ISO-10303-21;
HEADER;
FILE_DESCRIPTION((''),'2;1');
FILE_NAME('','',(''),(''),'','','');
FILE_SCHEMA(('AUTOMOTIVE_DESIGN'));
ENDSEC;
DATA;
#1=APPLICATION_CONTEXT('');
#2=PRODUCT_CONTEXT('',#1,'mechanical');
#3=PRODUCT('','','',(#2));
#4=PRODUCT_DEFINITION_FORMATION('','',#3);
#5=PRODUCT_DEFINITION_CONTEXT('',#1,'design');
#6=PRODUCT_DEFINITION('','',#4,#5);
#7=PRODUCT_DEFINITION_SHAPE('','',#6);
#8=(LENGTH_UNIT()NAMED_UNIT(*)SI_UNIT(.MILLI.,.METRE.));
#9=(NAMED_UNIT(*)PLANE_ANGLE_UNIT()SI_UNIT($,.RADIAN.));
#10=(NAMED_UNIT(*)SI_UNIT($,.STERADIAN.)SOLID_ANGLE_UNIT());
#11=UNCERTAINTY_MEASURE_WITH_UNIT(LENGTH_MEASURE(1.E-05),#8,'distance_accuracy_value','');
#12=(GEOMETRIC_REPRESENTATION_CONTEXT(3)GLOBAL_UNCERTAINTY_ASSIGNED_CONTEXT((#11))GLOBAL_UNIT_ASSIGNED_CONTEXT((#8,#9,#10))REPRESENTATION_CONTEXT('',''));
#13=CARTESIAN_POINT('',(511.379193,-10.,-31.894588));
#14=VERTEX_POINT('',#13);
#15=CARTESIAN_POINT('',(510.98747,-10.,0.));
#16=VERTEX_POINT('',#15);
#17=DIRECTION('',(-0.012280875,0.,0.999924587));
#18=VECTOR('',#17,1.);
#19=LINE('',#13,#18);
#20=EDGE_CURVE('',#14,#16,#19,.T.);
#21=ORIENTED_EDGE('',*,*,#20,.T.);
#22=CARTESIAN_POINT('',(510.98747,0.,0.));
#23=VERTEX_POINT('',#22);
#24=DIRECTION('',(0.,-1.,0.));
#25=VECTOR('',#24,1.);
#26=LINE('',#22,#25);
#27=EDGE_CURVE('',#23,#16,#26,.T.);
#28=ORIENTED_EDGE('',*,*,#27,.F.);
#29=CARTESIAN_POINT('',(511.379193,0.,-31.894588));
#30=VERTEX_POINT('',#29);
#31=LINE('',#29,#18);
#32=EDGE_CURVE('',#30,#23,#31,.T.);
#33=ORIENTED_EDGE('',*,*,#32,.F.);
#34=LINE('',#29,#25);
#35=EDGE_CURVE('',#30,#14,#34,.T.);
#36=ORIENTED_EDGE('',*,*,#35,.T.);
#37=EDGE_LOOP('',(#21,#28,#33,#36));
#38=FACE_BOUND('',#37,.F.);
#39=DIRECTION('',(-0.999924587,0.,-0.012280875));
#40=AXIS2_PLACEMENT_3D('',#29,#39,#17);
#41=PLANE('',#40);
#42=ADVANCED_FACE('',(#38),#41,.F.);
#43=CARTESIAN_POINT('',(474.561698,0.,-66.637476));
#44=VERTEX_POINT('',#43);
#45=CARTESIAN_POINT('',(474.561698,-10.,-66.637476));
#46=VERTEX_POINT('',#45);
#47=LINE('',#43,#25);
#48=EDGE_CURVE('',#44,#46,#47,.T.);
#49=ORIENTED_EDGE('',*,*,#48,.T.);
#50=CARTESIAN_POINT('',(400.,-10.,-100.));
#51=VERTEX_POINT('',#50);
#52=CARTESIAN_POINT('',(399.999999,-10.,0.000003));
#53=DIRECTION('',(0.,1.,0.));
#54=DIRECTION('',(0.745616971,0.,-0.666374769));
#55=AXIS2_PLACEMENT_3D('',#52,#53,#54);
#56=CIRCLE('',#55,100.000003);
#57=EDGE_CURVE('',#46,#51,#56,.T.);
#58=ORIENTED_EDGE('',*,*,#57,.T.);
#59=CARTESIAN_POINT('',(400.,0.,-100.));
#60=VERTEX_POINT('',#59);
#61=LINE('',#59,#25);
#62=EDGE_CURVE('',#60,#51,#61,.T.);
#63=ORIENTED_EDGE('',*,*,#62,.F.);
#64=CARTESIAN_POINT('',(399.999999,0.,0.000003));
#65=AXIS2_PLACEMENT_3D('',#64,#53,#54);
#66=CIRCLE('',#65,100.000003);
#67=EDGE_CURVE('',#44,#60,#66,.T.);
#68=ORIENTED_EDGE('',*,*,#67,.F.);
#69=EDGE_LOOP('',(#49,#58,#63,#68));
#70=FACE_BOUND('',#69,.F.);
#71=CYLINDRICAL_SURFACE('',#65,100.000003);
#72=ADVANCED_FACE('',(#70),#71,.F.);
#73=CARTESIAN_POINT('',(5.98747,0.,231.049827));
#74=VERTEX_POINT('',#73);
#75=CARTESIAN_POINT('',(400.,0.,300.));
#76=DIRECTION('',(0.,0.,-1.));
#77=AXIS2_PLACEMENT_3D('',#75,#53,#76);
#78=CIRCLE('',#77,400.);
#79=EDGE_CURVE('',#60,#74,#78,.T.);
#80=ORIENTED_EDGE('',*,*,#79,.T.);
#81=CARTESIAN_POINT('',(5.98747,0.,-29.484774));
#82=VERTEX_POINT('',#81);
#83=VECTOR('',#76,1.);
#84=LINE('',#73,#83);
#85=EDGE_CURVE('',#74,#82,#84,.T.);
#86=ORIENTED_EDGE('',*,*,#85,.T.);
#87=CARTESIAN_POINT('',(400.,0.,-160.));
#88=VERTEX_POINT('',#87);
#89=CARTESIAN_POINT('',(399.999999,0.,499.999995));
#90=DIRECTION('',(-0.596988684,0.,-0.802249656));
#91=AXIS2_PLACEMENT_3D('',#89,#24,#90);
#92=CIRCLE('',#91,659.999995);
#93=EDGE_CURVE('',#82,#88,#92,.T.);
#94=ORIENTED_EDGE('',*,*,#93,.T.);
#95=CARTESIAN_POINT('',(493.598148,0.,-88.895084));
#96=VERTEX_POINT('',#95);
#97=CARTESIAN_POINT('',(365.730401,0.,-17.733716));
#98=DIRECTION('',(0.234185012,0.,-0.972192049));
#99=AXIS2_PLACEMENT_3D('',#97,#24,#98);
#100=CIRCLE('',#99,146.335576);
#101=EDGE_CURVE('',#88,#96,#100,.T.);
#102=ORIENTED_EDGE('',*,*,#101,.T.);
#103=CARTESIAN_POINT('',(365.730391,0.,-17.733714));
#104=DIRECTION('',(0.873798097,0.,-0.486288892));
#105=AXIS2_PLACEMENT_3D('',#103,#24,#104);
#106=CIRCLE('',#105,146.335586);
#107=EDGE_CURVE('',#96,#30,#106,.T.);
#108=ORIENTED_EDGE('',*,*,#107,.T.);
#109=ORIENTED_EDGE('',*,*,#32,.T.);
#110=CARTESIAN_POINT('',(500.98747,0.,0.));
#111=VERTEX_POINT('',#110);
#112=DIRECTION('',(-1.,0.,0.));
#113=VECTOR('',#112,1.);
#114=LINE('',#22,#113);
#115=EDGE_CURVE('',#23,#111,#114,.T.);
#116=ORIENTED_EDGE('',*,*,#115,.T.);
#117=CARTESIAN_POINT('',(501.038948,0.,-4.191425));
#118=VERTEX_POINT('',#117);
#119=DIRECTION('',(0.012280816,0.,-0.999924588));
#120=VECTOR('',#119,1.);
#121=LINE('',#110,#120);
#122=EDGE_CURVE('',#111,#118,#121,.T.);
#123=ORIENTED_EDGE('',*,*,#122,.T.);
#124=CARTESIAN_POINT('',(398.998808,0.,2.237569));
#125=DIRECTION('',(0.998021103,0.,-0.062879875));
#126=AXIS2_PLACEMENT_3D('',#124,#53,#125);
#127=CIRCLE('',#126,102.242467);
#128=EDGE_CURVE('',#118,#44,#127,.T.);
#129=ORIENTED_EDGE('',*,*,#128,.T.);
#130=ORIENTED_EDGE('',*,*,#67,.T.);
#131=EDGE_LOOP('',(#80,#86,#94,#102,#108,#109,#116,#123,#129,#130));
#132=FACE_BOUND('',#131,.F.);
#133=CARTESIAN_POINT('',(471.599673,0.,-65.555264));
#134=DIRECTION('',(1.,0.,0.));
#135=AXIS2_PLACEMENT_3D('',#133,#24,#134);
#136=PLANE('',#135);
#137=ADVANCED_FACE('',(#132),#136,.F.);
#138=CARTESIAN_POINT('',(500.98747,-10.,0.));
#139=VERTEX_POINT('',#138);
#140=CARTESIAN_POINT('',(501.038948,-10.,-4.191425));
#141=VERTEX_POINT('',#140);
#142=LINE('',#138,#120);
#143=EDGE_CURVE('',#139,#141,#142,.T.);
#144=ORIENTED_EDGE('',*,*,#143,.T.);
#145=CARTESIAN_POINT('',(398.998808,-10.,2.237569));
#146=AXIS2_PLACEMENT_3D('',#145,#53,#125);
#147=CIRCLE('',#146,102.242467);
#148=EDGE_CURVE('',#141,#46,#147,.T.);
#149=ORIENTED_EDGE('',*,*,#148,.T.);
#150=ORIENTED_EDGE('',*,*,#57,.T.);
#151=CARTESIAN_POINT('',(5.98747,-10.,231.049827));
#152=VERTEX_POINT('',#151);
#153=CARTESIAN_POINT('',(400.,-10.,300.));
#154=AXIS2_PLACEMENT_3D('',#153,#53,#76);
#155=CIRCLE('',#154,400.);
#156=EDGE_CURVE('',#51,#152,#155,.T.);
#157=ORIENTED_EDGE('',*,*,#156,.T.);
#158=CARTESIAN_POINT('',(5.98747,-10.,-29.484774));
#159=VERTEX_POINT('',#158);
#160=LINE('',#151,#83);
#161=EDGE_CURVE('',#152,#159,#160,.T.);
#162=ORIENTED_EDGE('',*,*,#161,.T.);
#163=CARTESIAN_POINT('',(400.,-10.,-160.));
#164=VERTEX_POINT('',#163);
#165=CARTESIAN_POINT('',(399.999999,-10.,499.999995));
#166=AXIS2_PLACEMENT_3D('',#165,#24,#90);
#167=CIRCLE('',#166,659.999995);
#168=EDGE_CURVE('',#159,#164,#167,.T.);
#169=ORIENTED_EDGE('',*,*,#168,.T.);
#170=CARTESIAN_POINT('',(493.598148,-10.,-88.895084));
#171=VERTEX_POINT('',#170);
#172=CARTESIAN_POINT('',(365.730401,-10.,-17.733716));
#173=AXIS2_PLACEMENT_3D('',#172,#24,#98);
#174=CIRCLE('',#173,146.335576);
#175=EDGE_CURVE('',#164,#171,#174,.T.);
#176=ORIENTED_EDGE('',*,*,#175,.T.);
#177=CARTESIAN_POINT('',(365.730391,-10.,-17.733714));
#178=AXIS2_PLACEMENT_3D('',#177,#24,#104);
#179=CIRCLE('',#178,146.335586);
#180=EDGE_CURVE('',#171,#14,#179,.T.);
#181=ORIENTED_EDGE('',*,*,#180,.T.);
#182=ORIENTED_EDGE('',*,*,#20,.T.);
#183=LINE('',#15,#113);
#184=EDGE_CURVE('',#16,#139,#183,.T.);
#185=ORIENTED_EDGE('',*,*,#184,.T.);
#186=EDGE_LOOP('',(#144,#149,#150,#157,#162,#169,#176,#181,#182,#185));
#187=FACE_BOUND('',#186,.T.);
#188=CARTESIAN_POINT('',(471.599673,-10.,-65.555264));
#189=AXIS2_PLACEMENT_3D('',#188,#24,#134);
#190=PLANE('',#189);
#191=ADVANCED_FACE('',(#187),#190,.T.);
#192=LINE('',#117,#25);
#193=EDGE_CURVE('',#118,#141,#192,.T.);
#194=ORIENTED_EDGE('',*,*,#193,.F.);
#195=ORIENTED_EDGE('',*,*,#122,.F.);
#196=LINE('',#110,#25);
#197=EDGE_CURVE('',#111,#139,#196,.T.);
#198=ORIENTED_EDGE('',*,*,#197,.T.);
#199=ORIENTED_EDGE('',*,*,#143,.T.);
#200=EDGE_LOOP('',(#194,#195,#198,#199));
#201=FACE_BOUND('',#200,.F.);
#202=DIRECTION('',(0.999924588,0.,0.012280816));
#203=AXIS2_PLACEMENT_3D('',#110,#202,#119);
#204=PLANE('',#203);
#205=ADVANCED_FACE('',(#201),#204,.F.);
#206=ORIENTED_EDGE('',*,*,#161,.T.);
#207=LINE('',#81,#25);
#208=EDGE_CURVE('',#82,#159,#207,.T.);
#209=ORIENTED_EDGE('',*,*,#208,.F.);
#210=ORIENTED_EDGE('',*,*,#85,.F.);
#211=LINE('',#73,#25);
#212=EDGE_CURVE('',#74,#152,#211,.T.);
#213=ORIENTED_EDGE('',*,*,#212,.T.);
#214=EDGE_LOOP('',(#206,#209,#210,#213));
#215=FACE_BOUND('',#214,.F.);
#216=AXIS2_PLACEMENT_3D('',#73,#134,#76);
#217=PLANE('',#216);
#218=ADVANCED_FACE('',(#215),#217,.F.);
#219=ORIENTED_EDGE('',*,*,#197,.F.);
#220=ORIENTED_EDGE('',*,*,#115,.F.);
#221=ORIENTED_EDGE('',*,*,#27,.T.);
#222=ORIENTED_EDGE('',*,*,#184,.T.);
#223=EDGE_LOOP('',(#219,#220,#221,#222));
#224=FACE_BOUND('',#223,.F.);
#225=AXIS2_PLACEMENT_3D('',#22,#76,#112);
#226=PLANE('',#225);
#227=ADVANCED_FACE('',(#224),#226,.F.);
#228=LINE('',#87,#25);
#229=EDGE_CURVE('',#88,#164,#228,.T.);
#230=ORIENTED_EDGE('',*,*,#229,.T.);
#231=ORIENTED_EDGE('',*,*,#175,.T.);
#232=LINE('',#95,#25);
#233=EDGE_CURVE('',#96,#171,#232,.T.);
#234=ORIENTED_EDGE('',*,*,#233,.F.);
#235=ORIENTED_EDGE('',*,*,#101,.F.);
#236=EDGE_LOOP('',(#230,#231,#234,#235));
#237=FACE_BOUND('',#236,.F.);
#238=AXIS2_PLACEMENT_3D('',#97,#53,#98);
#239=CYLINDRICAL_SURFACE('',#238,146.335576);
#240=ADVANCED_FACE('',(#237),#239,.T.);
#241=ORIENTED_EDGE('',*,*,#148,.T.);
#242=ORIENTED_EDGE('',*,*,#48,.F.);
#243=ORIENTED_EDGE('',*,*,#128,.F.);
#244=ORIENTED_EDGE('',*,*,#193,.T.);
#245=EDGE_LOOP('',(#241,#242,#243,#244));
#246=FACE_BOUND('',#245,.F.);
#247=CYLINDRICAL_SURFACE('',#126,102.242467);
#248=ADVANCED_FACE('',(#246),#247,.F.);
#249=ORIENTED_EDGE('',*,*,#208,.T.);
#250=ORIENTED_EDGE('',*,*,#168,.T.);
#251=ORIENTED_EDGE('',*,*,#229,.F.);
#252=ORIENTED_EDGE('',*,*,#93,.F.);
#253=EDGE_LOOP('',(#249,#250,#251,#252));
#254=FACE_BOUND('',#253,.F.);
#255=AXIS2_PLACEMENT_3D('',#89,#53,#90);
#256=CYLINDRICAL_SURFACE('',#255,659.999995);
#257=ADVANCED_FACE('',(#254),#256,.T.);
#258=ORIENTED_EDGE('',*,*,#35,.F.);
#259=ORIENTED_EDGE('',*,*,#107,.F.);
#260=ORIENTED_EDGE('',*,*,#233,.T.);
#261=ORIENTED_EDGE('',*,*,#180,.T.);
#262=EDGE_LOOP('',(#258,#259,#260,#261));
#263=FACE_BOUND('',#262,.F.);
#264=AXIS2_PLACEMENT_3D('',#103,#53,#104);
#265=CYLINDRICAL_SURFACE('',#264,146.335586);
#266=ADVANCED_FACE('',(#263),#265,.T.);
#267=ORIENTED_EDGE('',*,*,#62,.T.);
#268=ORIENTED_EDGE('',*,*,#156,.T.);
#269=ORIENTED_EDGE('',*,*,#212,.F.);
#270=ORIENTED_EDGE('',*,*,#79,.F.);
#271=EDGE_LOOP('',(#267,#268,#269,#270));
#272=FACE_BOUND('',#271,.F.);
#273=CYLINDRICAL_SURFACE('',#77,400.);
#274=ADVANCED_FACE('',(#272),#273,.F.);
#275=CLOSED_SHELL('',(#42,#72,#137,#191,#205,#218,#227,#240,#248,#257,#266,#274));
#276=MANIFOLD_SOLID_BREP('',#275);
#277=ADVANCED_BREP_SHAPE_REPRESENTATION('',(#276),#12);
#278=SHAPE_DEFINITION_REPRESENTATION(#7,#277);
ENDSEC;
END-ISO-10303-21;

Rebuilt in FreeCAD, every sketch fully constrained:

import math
import FreeCAD as App
import Part
import Sketcher

doc = App.newDocument("Part")
body = doc.addObject("PartDesign::Body", "Body")

# Sketch on XZ plane
sketch1 = body.newObject("Sketcher::SketchObject", "Sketch")
sketch1.AttachmentSupport = (doc.getObject("XZ_Plane"), [""])
sketch1.MapMode = "FlatFace"
sketch1.addGeometry([
    Part.ArcOfCircle(Part.Circle(App.Vector(365.7, -17.7, 0), App.Vector(0, 0, 1), 146.3), math.radians(-29), math.radians(-6)),  # 0
    Part.LineSegment(App.Vector(511.4, -31.9, 0), App.Vector(511, 0, 0)),  # 1
    Part.LineSegment(App.Vector(511, 0, 0), App.Vector(501, 0, 0)),  # 2
    Part.LineSegment(App.Vector(501, 0, 0), App.Vector(501, -4.2, 0)),  # 3
    Part.ArcOfCircle(Part.Circle(App.Vector(399, 2.2, 0), App.Vector(0, 0, 1), 102.2), math.radians(-42), math.radians(-4)),  # 4
    Part.ArcOfCircle(Part.Circle(App.Vector(400, 0, 0), App.Vector(0, 0, 1), 100), math.radians(-90), math.radians(-42)),  # 5
    Part.ArcOfCircle(Part.Circle(App.Vector(400, 300, 0), App.Vector(0, 0, 1), 400), math.radians(-170), math.radians(-90)),  # 6
    Part.LineSegment(App.Vector(6, 231, 0), App.Vector(6, -29.5, 0)),  # 7
    Part.ArcOfCircle(Part.Circle(App.Vector(400, 500, 0), App.Vector(0, 0, 1), 660), math.radians(-127), math.radians(-90)),  # 8
    Part.ArcOfCircle(Part.Circle(App.Vector(365.7, -17.7, 0), App.Vector(0, 0, 1), 146.3), math.radians(-76), math.radians(-29)),  # 9
], False)
sketch1.addConstraint([
    Sketcher.Constraint("Coincident", 0, 2, 1, 1),
    Sketcher.Constraint("Coincident", 1, 2, 2, 1),
    Sketcher.Constraint("Coincident", 2, 2, 3, 1),
    Sketcher.Constraint("Coincident", 3, 2, 4, 2),
    Sketcher.Constraint("Coincident", 4, 1, 5, 2),
    Sketcher.Constraint("Tangent", 5, 1, 6, 2),
    Sketcher.Constraint("Coincident", 6, 1, 7, 1),
    Sketcher.Constraint("Coincident", 7, 2, 8, 1),
    Sketcher.Constraint("Coincident", 8, 2, 9, 1),
    Sketcher.Constraint("Tangent", 9, 2, 0, 1),
    Sketcher.Constraint("Horizontal", 2),
    Sketcher.Constraint("Vertical", 7),
    Sketcher.Constraint("PointOnObject", 1, 2, -1),
    Sketcher.Constraint("Parallel", 1, 3),
    Sketcher.Constraint("Vertical", 5, 3, 6, 3),
    Sketcher.Constraint("Vertical", 6, 3, 8, 3),
    Sketcher.Constraint("Vertical", 5, 1, 8, 2),
    Sketcher.Constraint("Radius", 6, 400.0),
    Sketcher.Constraint("DistanceX", 2, 2, 2, 1, 10.0),
    Sketcher.Constraint("DistanceX", -1, 1, 5, 3, 399.999999),
    Sketcher.Constraint("DistanceY", -1, 1, 6, 3, 300.0),
    Sketcher.Constraint("DistanceY", 8, 2, -1, 1, 160.0),
    Sketcher.Constraint("DistanceY", 7, 2, 7, 1, 260.534601),
    Sketcher.Constraint("Radius", 0, 146.335586),
    Sketcher.Constraint("Radius", 4, 102.242467),
    Sketcher.Constraint("Radius", 5, 100.000003),
    Sketcher.Constraint("Radius", 8, 659.999995),
    Sketcher.Constraint("Radius", 9, 146.335576),
    Sketcher.Constraint("DistanceX", -1, 1, 9, 3, 365.730401),
    Sketcher.Constraint("DistanceX", 0, 3, 0, 2, 145.648802),
    Sketcher.Constraint("DistanceX", 5, 3, 4, 1, 74.561699),
    Sketcher.Constraint("DistanceX", 9, 2, 3, 2, 7.4408),
    Sketcher.Constraint("Distance", 3, 4.191741),
    Sketcher.Constraint("DistanceX", -1, 1, 4, 3, 398.998808),
])
pad1 = body.newObject("PartDesign::Pad", "Pad")
pad1.Profile = sketch1
pad1.Length = 10

doc.recompute()
